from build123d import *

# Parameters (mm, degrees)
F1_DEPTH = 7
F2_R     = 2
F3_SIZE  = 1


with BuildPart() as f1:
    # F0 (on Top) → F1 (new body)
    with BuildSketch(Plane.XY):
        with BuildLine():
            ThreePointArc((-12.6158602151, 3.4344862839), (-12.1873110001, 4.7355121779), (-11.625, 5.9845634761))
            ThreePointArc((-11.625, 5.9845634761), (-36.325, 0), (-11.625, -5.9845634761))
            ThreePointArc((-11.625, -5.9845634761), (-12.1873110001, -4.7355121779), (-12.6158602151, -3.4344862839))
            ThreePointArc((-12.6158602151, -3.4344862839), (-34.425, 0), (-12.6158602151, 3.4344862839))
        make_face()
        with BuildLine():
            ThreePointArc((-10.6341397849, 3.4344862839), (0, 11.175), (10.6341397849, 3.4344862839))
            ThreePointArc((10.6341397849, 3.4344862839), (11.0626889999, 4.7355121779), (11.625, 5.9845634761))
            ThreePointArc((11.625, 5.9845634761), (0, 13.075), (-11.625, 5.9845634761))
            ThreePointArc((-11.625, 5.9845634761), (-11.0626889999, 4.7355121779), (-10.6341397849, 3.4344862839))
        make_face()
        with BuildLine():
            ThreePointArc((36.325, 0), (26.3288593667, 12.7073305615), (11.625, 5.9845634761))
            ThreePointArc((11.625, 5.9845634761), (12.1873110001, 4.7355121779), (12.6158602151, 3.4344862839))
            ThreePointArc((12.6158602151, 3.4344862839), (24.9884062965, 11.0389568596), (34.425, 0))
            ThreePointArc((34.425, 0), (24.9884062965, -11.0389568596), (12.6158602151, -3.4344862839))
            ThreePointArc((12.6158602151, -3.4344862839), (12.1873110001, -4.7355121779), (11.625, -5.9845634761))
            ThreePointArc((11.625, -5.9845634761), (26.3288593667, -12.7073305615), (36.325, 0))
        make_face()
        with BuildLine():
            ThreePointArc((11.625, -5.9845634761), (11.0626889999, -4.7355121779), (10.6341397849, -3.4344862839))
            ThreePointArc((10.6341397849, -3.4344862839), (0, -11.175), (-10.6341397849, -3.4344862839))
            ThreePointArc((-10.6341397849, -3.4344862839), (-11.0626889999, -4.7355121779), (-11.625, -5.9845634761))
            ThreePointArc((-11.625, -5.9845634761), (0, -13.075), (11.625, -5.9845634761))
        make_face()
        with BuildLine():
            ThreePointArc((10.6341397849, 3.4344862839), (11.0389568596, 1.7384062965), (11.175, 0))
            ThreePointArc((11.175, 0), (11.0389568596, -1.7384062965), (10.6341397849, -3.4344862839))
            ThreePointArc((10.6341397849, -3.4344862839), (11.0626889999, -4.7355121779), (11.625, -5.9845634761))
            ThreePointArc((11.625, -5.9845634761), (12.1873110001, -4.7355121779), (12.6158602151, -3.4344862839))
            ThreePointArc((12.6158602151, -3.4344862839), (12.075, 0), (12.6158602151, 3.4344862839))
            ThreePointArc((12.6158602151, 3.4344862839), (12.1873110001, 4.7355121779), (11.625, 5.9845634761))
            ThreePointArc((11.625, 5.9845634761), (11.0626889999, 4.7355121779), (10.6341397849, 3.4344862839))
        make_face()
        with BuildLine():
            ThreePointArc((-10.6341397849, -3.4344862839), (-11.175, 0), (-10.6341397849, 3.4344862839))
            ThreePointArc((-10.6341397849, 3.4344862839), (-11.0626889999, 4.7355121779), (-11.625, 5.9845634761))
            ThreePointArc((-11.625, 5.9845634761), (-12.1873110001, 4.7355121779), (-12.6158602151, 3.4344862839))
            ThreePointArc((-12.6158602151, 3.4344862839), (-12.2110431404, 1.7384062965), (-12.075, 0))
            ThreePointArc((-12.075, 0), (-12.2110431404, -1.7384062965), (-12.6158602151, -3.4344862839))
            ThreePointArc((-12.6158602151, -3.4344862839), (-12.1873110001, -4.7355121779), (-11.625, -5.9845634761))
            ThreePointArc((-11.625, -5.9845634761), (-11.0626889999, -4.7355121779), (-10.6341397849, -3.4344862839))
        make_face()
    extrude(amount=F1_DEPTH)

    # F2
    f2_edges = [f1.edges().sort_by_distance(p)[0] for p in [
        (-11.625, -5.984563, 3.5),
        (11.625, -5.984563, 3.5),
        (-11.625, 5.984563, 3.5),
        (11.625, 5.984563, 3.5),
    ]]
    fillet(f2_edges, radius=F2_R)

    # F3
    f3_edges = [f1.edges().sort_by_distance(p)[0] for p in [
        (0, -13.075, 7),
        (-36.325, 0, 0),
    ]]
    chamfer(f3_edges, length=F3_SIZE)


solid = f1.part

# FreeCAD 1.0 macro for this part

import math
import FreeCAD as App
import Part
import Sketcher
from FreeCAD import Vector
Q = App.Units.Quantity


def edges_at(feature, points):
    """Names of the edges that pass closest to the given points."""
    edges = feature.Shape.Edges
    near = lambda p: min(range(len(edges)), key=lambda i: edges[i].distToShape(Part.Vertex(*p))[0])
    return sorted({f"Edge{near(p) + 1}" for p in points})

doc = App.newDocument("Part")
body = doc.addObject("PartDesign::Body", "Body")

sketch1 = body.newObject("Sketcher::SketchObject", "Sketch")
sketch1.AttachmentSupport = (doc.getObject("XY_Plane"), [""])
sketch1.MapMode = "FlatFace"
sketch1.addGeometry(Part.ArcOfCircle(Part.Circle(Vector(-23.2, 0, 0), Vector(0, 0, 1), 13.1), math.radians(27), math.radians(333)), False)
sketch1.addGeometry(Part.ArcOfCircle(Part.Circle(Vector(0, 0, 0), Vector(0, 0, 1), 13.1), math.radians(-153), math.radians(-27)), False)
sketch1.addGeometry(Part.ArcOfCircle(Part.Circle(Vector(23.2, 0, 0), Vector(0, 0, 1), 13.1), math.radians(-153), math.radians(0)), False)
sketch1.addGeometry(Part.ArcOfCircle(Part.Circle(Vector(23.2, 0, 0), Vector(0, 0, 1), 13.1), math.radians(0), math.radians(153)), False)
sketch1.addGeometry(Part.ArcOfCircle(Part.Circle(Vector(0, 0, 0), Vector(0, 0, 1), 13.1), math.radians(27), math.radians(153)), False)
sketch1.addGeometry(Part.ArcOfCircle(Part.Circle(Vector(-23.2, 0, 0), Vector(0, 0, 1), 11.2), math.radians(18), math.radians(342)), False)
sketch1.addGeometry(Part.ArcOfCircle(Part.Circle(Vector(-23.2, 0, 0), Vector(0, 0, 1), 11.2), math.radians(0), math.radians(17.9)), False)
sketch1.addGeometry(Part.ArcOfCircle(Part.Circle(Vector(-23.2, 0, 0), Vector(0, 0, 1), 11.2), math.radians(-17.9), math.radians(0)), False)
sketch1.addGeometry(Part.ArcOfCircle(Part.Circle(Vector(0, 0, 0), Vector(0, 0, 1), 11.2), math.radians(162), math.radians(198)), False)
sketch1.addGeometry(Part.ArcOfCircle(Part.Circle(Vector(0, 0, 0), Vector(0, 0, 1), 11.2), math.radians(18), math.radians(162)), False)
sketch1.addGeometry(Part.ArcOfCircle(Part.Circle(Vector(0, 0, 0), Vector(0, 0, 1), 11.2), math.radians(0), math.radians(17.9)), False)
sketch1.addGeometry(Part.ArcOfCircle(Part.Circle(Vector(0, 0, 0), Vector(0, 0, 1), 11.2), math.radians(-17.9), math.radians(0)), False)
sketch1.addGeometry(Part.ArcOfCircle(Part.Circle(Vector(0, 0, 0), Vector(0, 0, 1), 11.2), math.radians(-162), math.radians(-18)), False)
sketch1.addGeometry(Part.ArcOfCircle(Part.Circle(Vector(23.2, 0, 0), Vector(0, 0, 1), 11.2), math.radians(0), math.radians(162)), False)
sketch1.addGeometry(Part.ArcOfCircle(Part.Circle(Vector(23.2, 0, 0), Vector(0, 0, 1), 11.2), math.radians(-162), math.radians(0)), False)
sketch1.addGeometry(Part.ArcOfCircle(Part.Circle(Vector(23.2, 0, 0), Vector(0, 0, 1), 11.2), math.radians(162), math.radians(198)), False)
sketch1.addConstraint(Sketcher.Constraint("Coincident", 0, 2, 1, 1))
sketch1.addConstraint(Sketcher.Constraint("Coincident", 1, 2, 2, 1))
sketch1.addConstraint(Sketcher.Constraint("Tangent", 2, 2, 3, 1))
sketch1.addConstraint(Sketcher.Constraint("Coincident", 3, 2, 4, 1))
sketch1.addConstraint(Sketcher.Constraint("Coincident", 4, 2, 0, 1))
sketch1.addConstraint(Sketcher.Constraint("Tangent", 5, 1, 6, 2))
sketch1.addConstraint(Sketcher.Constraint("Tangent", 6, 1, 7, 2))
sketch1.addConstraint(Sketcher.Constraint("Tangent", 7, 1, 5, 2))
sketch1.addConstraint(Sketcher.Constraint("Tangent", 8, 1, 9, 2))
sketch1.addConstraint(Sketcher.Constraint("Tangent", 9, 1, 10, 2))
sketch1.addConstraint(Sketcher.Constraint("Tangent", 10, 1, 11, 2))
sketch1.addConstraint(Sketcher.Constraint("Tangent", 11, 1, 12, 2))
sketch1.addConstraint(Sketcher.Constraint("Tangent", 12, 1, 8, 2))
sketch1.addConstraint(Sketcher.Constraint("Tangent", 13, 1, 14, 2))
sketch1.addConstraint(Sketcher.Constraint("Tangent", 14, 1, 15, 2))
sketch1.addConstraint(Sketcher.Constraint("Tangent", 15, 1, 13, 2))
sketch1.addConstraint(Sketcher.Constraint("Coincident", 1, 3, -1, 1))
sketch1.addConstraint(Sketcher.Constraint("Coincident", 4, 3, -1, 1))
sketch1.addConstraint(Sketcher.Constraint("Coincident", 8, 3, -1, 1))
sketch1.addConstraint(Sketcher.Constraint("Coincident", 10, 3, -1, 1))
sketch1.addConstraint(Sketcher.Constraint("Coincident", 5, 3, 0, 3))
sketch1.addConstraint(Sketcher.Constraint("Coincident", 13, 3, 2, 3))
sketch1.addConstraint(Sketcher.Constraint("Equal", 0, 1))
sketch1.addConstraint(Sketcher.Constraint("Equal", 1, 2))
sketch1.addConstraint(Sketcher.Constraint("Equal", 2, 3))
sketch1.addConstraint(Sketcher.Constraint("Equal", 3, 4))
sketch1.addConstraint(Sketcher.Constraint("Equal", 7, 8))
sketch1.addConstraint(Sketcher.Constraint("Equal", 12, 13))
sketch1.addConstraint(Sketcher.Constraint("Symmetric", 0, 3, 2, 3, -1, 1))
sketch1.addConstraint(Sketcher.Constraint("Symmetric", 7, 1, 14, 1, -2))
sketch1.addConstraint(Sketcher.Constraint("PointOnObject", 2, 2, -1))
sketch1.addConstraint(Sketcher.Constraint("PointOnObject", 6, 1, -1))
sketch1.addConstraint(Sketcher.Constraint("PointOnObject", 10, 1, -1))
sketch1.addConstraint(Sketcher.Constraint("PointOnObject", 13, 1, -1))
sketch1.addConstraint(Sketcher.Constraint("Horizontal", 5, 1, 8, 1))
sketch1.addConstraint(Sketcher.Constraint("Horizontal", 8, 1, 9, 1))
sketch1.addConstraint(Sketcher.Constraint("Horizontal", 7, 1, 11, 1))
sketch1.addConstraint(Sketcher.Constraint("Horizontal", 11, 1, 12, 1))
sketch1.addConstraint(Sketcher.Constraint("Horizontal", 9, 1, 15, 1))
sketch1.addConstraint(Sketcher.Constraint("Vertical", 5, 1, 7, 1))
sketch1.addConstraint(Sketcher.Constraint("Radius", 0, Q("13.075 mm")))
sketch1.addConstraint(Sketcher.Constraint("Radius", 5, Q("11.175 mm")))
sketch1.addConstraint(Sketcher.Constraint("DistanceX", 0, 3, 2, 3, Q("46.5 mm")))
sketch1.addConstraint(Sketcher.Constraint("DistanceX", 5, 1, -1, 1, Q("12.61586 mm")))
pad1 = body.newObject("PartDesign::Pad", "Pad")
pad1.Profile = sketch1
pad1.Length = 7
doc.recompute()

fillet = body.newObject("PartDesign::Fillet", "Fillet")
fillet.Base = (pad1, edges_at(pad1, [
    (-11.625, -5.985, 3.5),
    (11.625, -5.985, 3.5),
    (-11.625, 5.985, 3.5),
    (11.625, 5.985, 3.5),
]))
fillet.Radius = 2
doc.recompute()

chamfer = body.newObject("PartDesign::Chamfer", "Chamfer")
chamfer.Base = (fillet, edges_at(fillet, [(0, -13.075, 7), (-36.325, 0, 0)]))
chamfer.Size = 1

doc.recompute()
